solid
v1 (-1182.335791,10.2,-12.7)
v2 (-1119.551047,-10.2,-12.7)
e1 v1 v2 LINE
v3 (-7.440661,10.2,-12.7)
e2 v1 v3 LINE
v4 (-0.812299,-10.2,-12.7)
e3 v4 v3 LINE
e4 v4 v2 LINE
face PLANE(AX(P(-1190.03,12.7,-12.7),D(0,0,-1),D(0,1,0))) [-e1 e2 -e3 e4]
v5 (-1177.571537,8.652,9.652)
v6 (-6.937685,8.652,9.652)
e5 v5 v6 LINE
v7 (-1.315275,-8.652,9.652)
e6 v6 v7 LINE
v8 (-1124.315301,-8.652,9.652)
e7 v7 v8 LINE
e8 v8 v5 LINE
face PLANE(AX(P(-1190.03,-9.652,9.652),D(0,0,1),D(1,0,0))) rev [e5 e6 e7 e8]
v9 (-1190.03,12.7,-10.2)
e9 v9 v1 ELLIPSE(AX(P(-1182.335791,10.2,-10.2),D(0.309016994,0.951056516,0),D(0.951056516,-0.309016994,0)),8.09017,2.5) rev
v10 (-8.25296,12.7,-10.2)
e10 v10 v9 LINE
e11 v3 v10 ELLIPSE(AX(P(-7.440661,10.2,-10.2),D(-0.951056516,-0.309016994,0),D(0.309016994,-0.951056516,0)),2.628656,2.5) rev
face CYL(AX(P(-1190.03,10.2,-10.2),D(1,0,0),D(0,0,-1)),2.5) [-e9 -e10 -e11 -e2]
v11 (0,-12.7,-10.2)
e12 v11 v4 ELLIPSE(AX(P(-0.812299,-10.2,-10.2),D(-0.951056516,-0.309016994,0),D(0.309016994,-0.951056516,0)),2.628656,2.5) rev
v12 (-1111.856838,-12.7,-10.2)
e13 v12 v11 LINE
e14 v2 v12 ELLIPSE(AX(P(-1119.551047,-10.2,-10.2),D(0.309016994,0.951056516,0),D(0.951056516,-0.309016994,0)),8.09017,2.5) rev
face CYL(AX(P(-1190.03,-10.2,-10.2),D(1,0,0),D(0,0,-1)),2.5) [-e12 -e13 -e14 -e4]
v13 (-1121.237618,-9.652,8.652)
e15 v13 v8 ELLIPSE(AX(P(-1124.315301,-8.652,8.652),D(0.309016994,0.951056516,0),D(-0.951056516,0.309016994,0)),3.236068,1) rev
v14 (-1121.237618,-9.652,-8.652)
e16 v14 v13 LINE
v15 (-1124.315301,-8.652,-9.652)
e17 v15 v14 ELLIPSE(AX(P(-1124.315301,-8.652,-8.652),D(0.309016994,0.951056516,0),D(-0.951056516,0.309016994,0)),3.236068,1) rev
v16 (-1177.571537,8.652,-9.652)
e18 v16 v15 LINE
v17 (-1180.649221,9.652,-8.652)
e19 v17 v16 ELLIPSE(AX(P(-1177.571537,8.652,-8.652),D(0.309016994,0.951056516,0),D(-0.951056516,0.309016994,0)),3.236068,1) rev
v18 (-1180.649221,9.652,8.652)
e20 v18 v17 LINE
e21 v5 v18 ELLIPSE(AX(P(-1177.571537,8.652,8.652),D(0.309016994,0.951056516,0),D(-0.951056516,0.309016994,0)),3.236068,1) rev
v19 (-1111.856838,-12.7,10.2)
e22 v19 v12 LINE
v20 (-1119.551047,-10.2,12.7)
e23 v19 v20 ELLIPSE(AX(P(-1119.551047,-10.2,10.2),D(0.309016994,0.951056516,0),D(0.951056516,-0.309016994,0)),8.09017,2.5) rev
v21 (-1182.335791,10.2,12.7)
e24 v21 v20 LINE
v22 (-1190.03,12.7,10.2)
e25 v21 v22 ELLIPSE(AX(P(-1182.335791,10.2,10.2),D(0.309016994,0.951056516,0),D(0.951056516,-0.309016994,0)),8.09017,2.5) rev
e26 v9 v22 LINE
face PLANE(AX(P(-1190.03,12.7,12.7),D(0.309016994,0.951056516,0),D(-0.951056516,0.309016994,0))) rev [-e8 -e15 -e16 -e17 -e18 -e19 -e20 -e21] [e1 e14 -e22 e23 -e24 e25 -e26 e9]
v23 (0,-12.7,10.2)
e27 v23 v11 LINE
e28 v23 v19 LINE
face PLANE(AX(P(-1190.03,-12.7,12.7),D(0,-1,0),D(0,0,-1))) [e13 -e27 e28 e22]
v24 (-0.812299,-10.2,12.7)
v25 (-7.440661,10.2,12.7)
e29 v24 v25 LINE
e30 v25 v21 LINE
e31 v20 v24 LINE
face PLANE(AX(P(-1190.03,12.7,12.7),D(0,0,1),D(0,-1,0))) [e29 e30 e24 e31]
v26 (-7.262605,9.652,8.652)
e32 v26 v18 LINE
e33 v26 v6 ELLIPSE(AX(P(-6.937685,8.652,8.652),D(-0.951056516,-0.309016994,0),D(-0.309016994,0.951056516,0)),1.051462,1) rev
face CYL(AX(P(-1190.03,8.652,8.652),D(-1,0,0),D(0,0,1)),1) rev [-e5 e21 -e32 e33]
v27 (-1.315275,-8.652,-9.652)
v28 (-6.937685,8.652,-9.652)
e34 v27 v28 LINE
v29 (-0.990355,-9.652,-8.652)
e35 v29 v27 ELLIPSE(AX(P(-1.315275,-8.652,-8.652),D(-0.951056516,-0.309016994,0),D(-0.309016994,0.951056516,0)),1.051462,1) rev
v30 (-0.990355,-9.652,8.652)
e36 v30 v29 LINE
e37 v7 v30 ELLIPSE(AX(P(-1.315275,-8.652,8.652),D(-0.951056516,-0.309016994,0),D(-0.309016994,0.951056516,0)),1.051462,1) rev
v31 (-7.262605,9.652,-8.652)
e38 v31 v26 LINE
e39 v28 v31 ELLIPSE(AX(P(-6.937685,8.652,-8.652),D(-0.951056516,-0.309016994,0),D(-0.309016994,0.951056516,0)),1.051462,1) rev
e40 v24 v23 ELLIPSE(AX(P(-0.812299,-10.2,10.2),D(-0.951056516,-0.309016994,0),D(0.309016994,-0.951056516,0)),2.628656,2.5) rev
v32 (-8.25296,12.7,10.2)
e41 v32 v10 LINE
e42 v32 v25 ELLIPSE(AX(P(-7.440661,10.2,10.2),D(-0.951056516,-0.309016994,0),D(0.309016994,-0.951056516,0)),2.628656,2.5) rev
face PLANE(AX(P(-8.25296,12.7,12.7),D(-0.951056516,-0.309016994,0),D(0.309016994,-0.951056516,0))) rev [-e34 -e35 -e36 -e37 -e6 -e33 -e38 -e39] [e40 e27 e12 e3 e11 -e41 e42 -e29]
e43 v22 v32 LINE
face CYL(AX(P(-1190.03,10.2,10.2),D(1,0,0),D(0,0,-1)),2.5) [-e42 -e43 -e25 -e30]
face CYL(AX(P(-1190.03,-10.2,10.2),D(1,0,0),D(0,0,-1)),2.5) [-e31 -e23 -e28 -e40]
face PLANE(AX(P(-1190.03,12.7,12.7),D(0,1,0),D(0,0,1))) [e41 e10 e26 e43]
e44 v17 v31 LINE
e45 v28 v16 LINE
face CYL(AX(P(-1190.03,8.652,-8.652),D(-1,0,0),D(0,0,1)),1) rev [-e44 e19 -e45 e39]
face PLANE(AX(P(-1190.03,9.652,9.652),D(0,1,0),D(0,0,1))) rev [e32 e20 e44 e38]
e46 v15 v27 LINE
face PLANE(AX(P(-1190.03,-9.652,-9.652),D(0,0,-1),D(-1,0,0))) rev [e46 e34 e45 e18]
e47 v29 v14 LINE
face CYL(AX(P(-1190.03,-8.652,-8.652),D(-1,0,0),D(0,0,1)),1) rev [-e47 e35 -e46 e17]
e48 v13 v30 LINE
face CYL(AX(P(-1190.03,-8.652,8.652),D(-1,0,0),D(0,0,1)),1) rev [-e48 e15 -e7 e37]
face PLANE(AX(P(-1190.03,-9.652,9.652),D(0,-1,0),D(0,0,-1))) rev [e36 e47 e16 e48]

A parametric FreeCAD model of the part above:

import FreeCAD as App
import Part
import Sketcher

V = App.Vector
Q = App.Units.Quantity


def edges_at(feature, points):
    """Names of the edges that pass closest to the given points."""
    edges = feature.Shape.Edges
    near = lambda p: min(range(len(edges)), key=lambda i: edges[i].distToShape(Part.Vertex(*p))[0])
    return sorted({f"Edge{near(p) + 1}" for p in points})


def add_polygon(sketch, points):
    """Adds a closed chain of lines whose ends are joined by coincident constraints."""
    first, n = sketch.GeometryCount, len(points)
    for a, b in zip(points, points[1:] + points[:1]):
        sketch.addGeometry(Part.LineSegment(App.Vector(*a, 0), App.Vector(*b, 0)), False)
    for i in range(n):
        sketch.addConstraint(Sketcher.Constraint("Coincident", first + i, 2, first + (i + 1) % n, 1))

doc = App.newDocument("Part")
body = doc.addObject("PartDesign::Body", "Body")

sketch1 = body.newObject("Sketcher::SketchObject", "Sketch")
sketch1.AttachmentSupport = (doc.getObject("YZ_Plane"), [""])
sketch1.MapMode = "FlatFace"
add_polygon(sketch1, [(12.7, 12.7), (-12.7, 12.7), (-12.7, -12.7), (12.7, -12.7)])
add_polygon(sketch1, [(-9.652, -9.652), (-9.652, 9.652), (9.652, 9.652), (9.652, -9.652)])
sketch1.addConstraint([
    Sketcher.Constraint("Horizontal", 0),
    Sketcher.Constraint("Vertical", 1),
    Sketcher.Constraint("Horizontal", 2),
    Sketcher.Constraint("Vertical", 3),
    Sketcher.Constraint("Vertical", 4),
    Sketcher.Constraint("Horizontal", 5),
    Sketcher.Constraint("Vertical", 6),
    Sketcher.Constraint("Horizontal", 7),
    Sketcher.Constraint("Symmetric", 0, 2, 2, 2, -1, 1),
    Sketcher.Constraint("Symmetric", 4, 2, 6, 2, -1, 1),
    Sketcher.Constraint("Equal", 2, 1),
    Sketcher.Constraint("Equal", 7, 4),
    Sketcher.Constraint("DistanceX", 0, 2, 0, 1, Q("25.4 mm")),
    Sketcher.Constraint("DistanceX", 5, 1, 5, 2, Q("19.304 mm")),
])
pad1 = body.newObject("PartDesign::Pad", "Pad")
pad1.Profile = sketch1
pad1.Length = 1190.03
pad1.Reversed = True
doc.recompute()

fillet = body.newObject("PartDesign::Fillet", "Fillet")
fillet.Base = (pad1, edges_at(pad1, [
    (-595.015, -12.7, -12.7),
    (-595.015, -12.7, 12.7),
    (-595.015, 12.7, 12.7),
    (-595.015, 12.7, -12.7),
]))
fillet.Radius = 2.5
doc.recompute()

fillet2 = body.newObject("PartDesign::Fillet", "Fillet001")
fillet2.Base = (fillet, edges_at(fillet, [
    (-595.015, 9.652, -9.652),
    (-595.015, -9.652, -9.652),
    (-595.015, -9.652, 9.652),
    (-595.015, 9.652, 9.652),
]))
fillet2.Radius = 1

sketch2 = body.newObject("Sketcher::SketchObject", "Sketch001")
sketch2.AttachmentSupport = (doc.getObject("XY_Plane"), [""])
sketch2.MapMode = "FlatFace"
sketch2.AttachmentOffset = App.Placement(V(0, 0, -12.7), App.Rotation())
add_polygon(sketch2, [(-1190.03, 12.7), (-1111.856838, -12.7), (-1190.03, -12.7)])
add_polygon(sketch2, [(-8.25296, 12.7), (0, 12.7), (0, -12.7)])
sketch2.addConstraint([
    Sketcher.Constraint("Horizontal", 1),
    Sketcher.Constraint("Vertical", 2),
    Sketcher.Constraint("Horizontal", 3),
    Sketcher.Constraint("Vertical", 4),
    Sketcher.Constraint("Symmetric", 3, 2, 4, 2, -1, 1),
    Sketcher.Constraint("Horizontal", 2, 2, 3, 2),
    Sketcher.Constraint("Horizontal", 1, 2, 4, 2),
    Sketcher.Constraint("Angle", 0, Q("-18 deg")),
    Sketcher.Constraint("Angle", 5, Q("108 deg")),
    Sketcher.Constraint("DistanceY", 2, 1, 2, 2, Q("25.4 mm")),
    Sketcher.Constraint("DistanceX", 1, 2, -1, 1, Q("1190.03 mm")),
])
pocket1 = body.newObject("PartDesign::Pocket", "Pocket")
pocket1.Profile = sketch2
pocket1.Type = "ThroughAll"
pocket1.Reversed = True

doc.recompute()
